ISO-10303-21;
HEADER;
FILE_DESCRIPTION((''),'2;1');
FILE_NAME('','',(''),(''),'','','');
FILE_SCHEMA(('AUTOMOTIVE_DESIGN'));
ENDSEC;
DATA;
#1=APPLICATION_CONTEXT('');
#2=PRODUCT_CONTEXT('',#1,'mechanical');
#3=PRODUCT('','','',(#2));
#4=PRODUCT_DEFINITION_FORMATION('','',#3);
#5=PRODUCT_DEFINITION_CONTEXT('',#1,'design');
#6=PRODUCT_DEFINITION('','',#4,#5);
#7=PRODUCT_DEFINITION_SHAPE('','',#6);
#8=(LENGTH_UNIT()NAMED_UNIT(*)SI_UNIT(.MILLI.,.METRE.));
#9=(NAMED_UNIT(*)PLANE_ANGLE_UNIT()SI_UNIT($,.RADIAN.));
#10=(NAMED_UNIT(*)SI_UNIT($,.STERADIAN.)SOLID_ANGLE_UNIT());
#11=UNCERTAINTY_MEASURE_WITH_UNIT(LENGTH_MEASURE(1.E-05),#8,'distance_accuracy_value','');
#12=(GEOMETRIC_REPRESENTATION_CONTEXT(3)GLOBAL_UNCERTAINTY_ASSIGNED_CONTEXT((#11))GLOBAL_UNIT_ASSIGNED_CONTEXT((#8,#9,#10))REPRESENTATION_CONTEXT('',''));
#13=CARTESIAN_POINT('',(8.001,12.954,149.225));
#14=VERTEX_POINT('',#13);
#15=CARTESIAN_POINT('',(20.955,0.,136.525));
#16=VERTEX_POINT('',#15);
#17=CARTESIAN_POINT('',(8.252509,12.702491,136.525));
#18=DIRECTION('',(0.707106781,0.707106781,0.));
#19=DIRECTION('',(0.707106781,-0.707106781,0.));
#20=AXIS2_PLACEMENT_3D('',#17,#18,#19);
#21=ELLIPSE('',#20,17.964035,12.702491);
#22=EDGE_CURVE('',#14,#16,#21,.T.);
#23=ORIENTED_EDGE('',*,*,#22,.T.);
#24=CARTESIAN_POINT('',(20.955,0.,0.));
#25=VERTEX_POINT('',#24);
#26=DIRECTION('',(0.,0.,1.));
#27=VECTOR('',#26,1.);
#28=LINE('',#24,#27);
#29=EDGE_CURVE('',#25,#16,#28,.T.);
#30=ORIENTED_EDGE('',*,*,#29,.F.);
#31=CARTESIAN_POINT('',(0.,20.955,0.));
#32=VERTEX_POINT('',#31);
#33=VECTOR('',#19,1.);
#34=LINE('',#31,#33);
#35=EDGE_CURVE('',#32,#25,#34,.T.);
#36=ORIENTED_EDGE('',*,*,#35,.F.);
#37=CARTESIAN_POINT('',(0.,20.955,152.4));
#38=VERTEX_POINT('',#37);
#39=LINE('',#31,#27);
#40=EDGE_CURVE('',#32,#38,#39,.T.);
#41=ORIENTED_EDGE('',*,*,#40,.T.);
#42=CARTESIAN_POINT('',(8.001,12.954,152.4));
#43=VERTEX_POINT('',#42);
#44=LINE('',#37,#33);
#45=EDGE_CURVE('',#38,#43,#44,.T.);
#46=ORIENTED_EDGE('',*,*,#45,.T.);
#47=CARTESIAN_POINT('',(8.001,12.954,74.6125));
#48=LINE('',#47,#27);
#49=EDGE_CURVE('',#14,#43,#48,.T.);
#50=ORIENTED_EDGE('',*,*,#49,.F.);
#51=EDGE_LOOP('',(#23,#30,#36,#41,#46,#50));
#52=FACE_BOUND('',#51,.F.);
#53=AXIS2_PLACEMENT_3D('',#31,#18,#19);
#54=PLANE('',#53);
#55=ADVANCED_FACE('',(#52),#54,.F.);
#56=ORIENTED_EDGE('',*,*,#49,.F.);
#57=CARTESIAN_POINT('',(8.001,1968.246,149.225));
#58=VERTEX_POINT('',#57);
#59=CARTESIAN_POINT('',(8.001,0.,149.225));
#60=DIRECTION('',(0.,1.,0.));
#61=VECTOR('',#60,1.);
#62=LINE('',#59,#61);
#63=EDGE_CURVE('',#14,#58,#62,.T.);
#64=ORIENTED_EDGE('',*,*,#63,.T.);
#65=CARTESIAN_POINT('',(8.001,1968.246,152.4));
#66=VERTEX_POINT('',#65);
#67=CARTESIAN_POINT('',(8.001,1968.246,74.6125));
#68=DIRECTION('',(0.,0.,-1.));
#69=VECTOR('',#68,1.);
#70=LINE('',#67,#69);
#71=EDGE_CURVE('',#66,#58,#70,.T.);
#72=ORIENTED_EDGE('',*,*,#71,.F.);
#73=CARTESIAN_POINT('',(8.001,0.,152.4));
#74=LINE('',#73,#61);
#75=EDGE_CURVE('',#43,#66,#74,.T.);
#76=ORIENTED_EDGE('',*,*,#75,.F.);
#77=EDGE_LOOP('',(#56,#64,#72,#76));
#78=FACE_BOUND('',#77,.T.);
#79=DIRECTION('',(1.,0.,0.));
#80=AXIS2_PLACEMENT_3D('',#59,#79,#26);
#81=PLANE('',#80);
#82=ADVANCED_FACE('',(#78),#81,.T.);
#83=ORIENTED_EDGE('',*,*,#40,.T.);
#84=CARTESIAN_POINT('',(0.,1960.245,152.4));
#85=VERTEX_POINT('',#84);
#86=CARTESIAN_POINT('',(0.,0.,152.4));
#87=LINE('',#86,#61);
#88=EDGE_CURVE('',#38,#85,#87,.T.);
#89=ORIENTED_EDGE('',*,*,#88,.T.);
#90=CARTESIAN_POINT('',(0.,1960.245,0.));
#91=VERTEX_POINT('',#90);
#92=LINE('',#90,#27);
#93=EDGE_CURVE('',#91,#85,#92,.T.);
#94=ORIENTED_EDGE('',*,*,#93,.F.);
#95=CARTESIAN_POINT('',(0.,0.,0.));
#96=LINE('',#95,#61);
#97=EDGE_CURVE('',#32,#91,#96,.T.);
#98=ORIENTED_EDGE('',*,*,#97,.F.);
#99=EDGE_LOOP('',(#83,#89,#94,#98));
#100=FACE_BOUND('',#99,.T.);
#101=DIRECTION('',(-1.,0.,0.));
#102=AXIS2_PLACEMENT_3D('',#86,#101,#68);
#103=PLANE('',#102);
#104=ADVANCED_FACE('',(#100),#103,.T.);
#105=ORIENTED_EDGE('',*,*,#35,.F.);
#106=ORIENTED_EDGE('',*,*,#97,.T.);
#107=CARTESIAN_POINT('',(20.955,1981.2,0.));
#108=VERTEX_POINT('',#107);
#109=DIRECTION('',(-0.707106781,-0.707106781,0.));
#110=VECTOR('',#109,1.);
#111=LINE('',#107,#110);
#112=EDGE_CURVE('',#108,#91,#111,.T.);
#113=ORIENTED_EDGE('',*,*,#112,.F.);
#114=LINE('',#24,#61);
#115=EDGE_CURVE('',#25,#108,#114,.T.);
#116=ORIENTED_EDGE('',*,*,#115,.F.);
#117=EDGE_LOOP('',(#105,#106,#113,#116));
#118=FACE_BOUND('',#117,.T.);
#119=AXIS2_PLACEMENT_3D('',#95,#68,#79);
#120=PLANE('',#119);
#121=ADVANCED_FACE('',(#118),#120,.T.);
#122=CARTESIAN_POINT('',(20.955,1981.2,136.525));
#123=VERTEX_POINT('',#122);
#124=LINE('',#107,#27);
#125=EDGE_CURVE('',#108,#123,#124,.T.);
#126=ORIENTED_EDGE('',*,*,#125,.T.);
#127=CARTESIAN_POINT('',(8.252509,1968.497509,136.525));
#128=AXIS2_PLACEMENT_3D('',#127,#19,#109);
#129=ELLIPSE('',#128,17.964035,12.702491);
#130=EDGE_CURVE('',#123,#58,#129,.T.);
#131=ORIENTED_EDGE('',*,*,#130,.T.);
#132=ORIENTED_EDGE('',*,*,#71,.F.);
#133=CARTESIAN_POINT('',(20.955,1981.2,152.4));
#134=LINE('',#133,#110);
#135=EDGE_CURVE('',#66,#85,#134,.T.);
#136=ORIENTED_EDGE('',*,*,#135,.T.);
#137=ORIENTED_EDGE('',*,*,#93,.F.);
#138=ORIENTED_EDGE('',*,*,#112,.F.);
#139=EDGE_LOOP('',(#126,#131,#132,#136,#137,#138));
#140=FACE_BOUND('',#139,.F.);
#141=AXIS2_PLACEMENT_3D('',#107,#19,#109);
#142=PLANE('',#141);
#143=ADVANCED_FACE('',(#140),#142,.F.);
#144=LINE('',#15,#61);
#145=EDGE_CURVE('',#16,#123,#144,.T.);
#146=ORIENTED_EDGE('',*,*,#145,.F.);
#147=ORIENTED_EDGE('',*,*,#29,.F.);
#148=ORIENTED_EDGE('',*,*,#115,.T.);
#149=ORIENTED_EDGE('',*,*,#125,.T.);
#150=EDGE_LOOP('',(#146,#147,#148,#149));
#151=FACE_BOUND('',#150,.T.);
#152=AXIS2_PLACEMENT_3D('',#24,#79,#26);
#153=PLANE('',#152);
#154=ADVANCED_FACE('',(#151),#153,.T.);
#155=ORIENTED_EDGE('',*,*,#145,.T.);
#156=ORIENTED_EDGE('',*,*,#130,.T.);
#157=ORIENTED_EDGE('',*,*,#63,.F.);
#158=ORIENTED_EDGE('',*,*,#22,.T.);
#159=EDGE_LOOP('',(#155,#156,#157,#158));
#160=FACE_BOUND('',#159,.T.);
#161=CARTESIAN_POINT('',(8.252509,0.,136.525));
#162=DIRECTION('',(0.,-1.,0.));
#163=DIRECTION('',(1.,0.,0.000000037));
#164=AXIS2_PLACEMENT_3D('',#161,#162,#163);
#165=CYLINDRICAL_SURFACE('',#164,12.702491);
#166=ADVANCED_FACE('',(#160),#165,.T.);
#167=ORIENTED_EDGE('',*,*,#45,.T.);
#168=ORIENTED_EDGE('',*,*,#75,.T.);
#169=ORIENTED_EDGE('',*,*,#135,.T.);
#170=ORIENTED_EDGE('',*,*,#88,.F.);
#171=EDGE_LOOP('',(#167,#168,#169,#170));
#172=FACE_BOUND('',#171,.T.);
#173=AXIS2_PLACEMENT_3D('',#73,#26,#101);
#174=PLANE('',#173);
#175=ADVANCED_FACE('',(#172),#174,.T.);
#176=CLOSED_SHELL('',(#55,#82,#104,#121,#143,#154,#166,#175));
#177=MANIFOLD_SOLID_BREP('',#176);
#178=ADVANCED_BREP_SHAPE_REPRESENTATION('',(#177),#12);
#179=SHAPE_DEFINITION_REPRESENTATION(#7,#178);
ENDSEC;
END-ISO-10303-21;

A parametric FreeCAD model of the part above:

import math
import FreeCAD as App
import Part
import Sketcher

V = App.Vector
Q = App.Units.Quantity

doc = App.newDocument("Part")
params = doc.addObject("Spreadsheet::Sheet", "Params")
for row, (alias, value) in enumerate([
    ("sketch1_height", "6 in"),
    ("sketch1_height2", "0.5 in"),
    ("sketch1_width", "0.825 in"),
    ("sketch1_width2", "0.315 in"),
    ("sketch1_height3", "5.375 in"),
    ("pad1_length", "78 in"),
    ("sketch2_width", "0.825 in"),
    ("pocket1_length", "6 in"),
    ("sketch3_width", "0.825 in"),
    ("pocket2_length", "6 in"),
], start=1):
    params.set(f"A{row}", alias)
    params.set(f"B{row}", "=" + value)
    params.setAlias(f"B{row}", alias)

body = doc.addObject("PartDesign::Body", "Body")

# Sketch on XZ plane
sketch1 = body.newObject("Sketcher::SketchObject", "Sketch")
sketch1.AttachmentSupport = (doc.getObject("XZ_Plane"), [""])
sketch1.MapMode = "FlatFace"
sketch1.addGeometry(Part.LineSegment(V(0, 152.4, 0), V(0, 0, 0)), False)
sketch1.addGeometry(Part.LineSegment(V(0, 0, 0), V(20.955, 0, 0)), False)
sketch1.addGeometry(Part.LineSegment(V(20.955, 0, 0), V(20.955, 136.525, 0)), False)
sketch1.addGeometry(Part.ArcOfCircle(Part.Circle(V(8.252509, 136.525, 0), V(0, 0, 1), 12.702491), math.radians(0.000002), math.radians(91.134531)), False)
sketch1.addGeometry(Part.LineSegment(V(8.001, 149.225, 0), V(8.001, 152.4, 0)), False)
sketch1.addGeometry(Part.LineSegment(V(8.001, 152.4, 0), V(0, 152.4, 0)), False)
sketch1.addConstraint(Sketcher.Constraint("Coincident", 0, 2, 1, 1))
sketch1.addConstraint(Sketcher.Constraint("Coincident", 1, 2, 2, 1))
sketch1.addConstraint(Sketcher.Constraint("Tangent", 2, 2, 3, 1))
sketch1.addConstraint(Sketcher.Constraint("Coincident", 3, 2, 4, 1))
sketch1.addConstraint(Sketcher.Constraint("Coincident", 4, 2, 5, 1))
sketch1.addConstraint(Sketcher.Constraint("Coincident", 5, 2, 0, 1))
sketch1.addConstraint(Sketcher.Constraint("Vertical", 0))
sketch1.addConstraint(Sketcher.Constraint("Horizontal", 1))
sketch1.addConstraint(Sketcher.Constraint("Vertical", 2))
sketch1.addConstraint(Sketcher.Constraint("Vertical", 4))
sketch1.addConstraint(Sketcher.Constraint("Horizontal", 5))
sketch1.addConstraint(Sketcher.Constraint("Coincident", 0, 2, -1, 1))
sketch1.addConstraint(Sketcher.Constraint("DistanceY", 0, 2, 0, 1, Q("6 in")))
sketch1.addConstraint(Sketcher.Constraint("DistanceY", 3, 3, 3, 2, Q("0.5 in")))
sketch1.addConstraint(Sketcher.Constraint("DistanceX", 1, 1, 1, 2, Q("0.825 in")))
sketch1.addConstraint(Sketcher.Constraint("DistanceX", 5, 2, 5, 1, Q("0.315 in")))
sketch1.addConstraint(Sketcher.Constraint("DistanceY", 2, 1, 2, 2, Q("5.375 in")))
sketch1.setExpression("Constraints[12]", "Params.sketch1_height")
sketch1.setExpression("Constraints[13]", "Params.sketch1_height2")
sketch1.setExpression("Constraints[14]", "Params.sketch1_width")
sketch1.setExpression("Constraints[15]", "Params.sketch1_width2")
sketch1.setExpression("Constraints[16]", "Params.sketch1_height3")
pad1 = body.newObject("PartDesign::Pad", "Pad")
pad1.Profile = sketch1
pad1.setExpression("Length", "Params.pad1_length")
pad1.Reversed = True

# Sketch on XY plane
sketch2 = body.newObject("Sketcher::SketchObject", "Sketch001")
sketch2.AttachmentSupport = (doc.getObject("XY_Plane"), [""])
sketch2.MapMode = "FlatFace"
sketch2.addGeometry(Part.LineSegment(V(0, 20.955, 0), V(20.955, 0, 0)), False)
sketch2.addGeometry(Part.LineSegment(V(20.955, 0, 0), V(0, 0, 0)), False)
sketch2.addGeometry(Part.LineSegment(V(0, 0, 0), V(0, 20.955, 0)), False)
sketch2.addConstraint(Sketcher.Constraint("Coincident", 0, 2, 1, 1))
sketch2.addConstraint(Sketcher.Constraint("Coincident", 1, 2, 2, 1))
sketch2.addConstraint(Sketcher.Constraint("Coincident", 2, 2, 0, 1))
sketch2.addConstraint(Sketcher.Constraint("Horizontal", 1))
sketch2.addConstraint(Sketcher.Constraint("Vertical", 2))
sketch2.addConstraint(Sketcher.Constraint("Coincident", 1, 2, -1, 1))
sketch2.addConstraint(Sketcher.Constraint("Equal", 1, 2))
sketch2.addConstraint(Sketcher.Constraint("DistanceX", 1, 2, 1, 1, Q("0.825 in")))
sketch2.setExpression("Constraints[7]", "Params.sketch2_width")
pocket1 = body.newObject("PartDesign::Pocket", "Pocket")
pocket1.Profile = sketch2
pocket1.setExpression("Length", "Params.pocket1_length")
pocket1.Reversed = True

# Sketch on XY plane
sketch3 = body.newObject("Sketcher::SketchObject", "Sketch002")
sketch3.AttachmentSupport = (doc.getObject("XY_Plane"), [""])
sketch3.MapMode = "FlatFace"
sketch3.addGeometry(Part.LineSegment(V(0, 1981.2, 0), V(20.955, 1981.2, 0)), False)
sketch3.addGeometry(Part.LineSegment(V(20.955, 1981.2, 0), V(0, 1960.245, 0)), False)
sketch3.addGeometry(Part.LineSegment(V(0, 1960.245, 0), V(0, 1981.2, 0)), False)
sketch3.addConstraint(Sketcher.Constraint("Coincident", 0, 2, 1, 1))
sketch3.addConstraint(Sketcher.Constraint("Coincident", 1, 2, 2, 1))
sketch3.addConstraint(Sketcher.Constraint("Coincident", 2, 2, 0, 1))
sketch3.addConstraint(Sketcher.Constraint("Horizontal", 0))
sketch3.addConstraint(Sketcher.Constraint("Vertical", 2))
sketch3.addConstraint(Sketcher.Constraint("PointOnObject", 1, 2, -2))
sketch3.addConstraint(Sketcher.Constraint("Equal", 0, 2))
sketch3.addConstraint(Sketcher.Constraint("DistanceY", -1, 1, 0, 2, Q("78 in")))
sketch3.addConstraint(Sketcher.Constraint("DistanceX", 0, 1, 0, 2, Q("0.825 in")))
sketch3.setExpression("Constraints[8]", "Params.sketch3_width")
pocket2 = body.newObject("PartDesign::Pocket", "Pocket001")
pocket2.Profile = sketch3
pocket2.setExpression("Length", "Params.pocket2_length")
pocket2.Reversed = True

doc.recompute()
